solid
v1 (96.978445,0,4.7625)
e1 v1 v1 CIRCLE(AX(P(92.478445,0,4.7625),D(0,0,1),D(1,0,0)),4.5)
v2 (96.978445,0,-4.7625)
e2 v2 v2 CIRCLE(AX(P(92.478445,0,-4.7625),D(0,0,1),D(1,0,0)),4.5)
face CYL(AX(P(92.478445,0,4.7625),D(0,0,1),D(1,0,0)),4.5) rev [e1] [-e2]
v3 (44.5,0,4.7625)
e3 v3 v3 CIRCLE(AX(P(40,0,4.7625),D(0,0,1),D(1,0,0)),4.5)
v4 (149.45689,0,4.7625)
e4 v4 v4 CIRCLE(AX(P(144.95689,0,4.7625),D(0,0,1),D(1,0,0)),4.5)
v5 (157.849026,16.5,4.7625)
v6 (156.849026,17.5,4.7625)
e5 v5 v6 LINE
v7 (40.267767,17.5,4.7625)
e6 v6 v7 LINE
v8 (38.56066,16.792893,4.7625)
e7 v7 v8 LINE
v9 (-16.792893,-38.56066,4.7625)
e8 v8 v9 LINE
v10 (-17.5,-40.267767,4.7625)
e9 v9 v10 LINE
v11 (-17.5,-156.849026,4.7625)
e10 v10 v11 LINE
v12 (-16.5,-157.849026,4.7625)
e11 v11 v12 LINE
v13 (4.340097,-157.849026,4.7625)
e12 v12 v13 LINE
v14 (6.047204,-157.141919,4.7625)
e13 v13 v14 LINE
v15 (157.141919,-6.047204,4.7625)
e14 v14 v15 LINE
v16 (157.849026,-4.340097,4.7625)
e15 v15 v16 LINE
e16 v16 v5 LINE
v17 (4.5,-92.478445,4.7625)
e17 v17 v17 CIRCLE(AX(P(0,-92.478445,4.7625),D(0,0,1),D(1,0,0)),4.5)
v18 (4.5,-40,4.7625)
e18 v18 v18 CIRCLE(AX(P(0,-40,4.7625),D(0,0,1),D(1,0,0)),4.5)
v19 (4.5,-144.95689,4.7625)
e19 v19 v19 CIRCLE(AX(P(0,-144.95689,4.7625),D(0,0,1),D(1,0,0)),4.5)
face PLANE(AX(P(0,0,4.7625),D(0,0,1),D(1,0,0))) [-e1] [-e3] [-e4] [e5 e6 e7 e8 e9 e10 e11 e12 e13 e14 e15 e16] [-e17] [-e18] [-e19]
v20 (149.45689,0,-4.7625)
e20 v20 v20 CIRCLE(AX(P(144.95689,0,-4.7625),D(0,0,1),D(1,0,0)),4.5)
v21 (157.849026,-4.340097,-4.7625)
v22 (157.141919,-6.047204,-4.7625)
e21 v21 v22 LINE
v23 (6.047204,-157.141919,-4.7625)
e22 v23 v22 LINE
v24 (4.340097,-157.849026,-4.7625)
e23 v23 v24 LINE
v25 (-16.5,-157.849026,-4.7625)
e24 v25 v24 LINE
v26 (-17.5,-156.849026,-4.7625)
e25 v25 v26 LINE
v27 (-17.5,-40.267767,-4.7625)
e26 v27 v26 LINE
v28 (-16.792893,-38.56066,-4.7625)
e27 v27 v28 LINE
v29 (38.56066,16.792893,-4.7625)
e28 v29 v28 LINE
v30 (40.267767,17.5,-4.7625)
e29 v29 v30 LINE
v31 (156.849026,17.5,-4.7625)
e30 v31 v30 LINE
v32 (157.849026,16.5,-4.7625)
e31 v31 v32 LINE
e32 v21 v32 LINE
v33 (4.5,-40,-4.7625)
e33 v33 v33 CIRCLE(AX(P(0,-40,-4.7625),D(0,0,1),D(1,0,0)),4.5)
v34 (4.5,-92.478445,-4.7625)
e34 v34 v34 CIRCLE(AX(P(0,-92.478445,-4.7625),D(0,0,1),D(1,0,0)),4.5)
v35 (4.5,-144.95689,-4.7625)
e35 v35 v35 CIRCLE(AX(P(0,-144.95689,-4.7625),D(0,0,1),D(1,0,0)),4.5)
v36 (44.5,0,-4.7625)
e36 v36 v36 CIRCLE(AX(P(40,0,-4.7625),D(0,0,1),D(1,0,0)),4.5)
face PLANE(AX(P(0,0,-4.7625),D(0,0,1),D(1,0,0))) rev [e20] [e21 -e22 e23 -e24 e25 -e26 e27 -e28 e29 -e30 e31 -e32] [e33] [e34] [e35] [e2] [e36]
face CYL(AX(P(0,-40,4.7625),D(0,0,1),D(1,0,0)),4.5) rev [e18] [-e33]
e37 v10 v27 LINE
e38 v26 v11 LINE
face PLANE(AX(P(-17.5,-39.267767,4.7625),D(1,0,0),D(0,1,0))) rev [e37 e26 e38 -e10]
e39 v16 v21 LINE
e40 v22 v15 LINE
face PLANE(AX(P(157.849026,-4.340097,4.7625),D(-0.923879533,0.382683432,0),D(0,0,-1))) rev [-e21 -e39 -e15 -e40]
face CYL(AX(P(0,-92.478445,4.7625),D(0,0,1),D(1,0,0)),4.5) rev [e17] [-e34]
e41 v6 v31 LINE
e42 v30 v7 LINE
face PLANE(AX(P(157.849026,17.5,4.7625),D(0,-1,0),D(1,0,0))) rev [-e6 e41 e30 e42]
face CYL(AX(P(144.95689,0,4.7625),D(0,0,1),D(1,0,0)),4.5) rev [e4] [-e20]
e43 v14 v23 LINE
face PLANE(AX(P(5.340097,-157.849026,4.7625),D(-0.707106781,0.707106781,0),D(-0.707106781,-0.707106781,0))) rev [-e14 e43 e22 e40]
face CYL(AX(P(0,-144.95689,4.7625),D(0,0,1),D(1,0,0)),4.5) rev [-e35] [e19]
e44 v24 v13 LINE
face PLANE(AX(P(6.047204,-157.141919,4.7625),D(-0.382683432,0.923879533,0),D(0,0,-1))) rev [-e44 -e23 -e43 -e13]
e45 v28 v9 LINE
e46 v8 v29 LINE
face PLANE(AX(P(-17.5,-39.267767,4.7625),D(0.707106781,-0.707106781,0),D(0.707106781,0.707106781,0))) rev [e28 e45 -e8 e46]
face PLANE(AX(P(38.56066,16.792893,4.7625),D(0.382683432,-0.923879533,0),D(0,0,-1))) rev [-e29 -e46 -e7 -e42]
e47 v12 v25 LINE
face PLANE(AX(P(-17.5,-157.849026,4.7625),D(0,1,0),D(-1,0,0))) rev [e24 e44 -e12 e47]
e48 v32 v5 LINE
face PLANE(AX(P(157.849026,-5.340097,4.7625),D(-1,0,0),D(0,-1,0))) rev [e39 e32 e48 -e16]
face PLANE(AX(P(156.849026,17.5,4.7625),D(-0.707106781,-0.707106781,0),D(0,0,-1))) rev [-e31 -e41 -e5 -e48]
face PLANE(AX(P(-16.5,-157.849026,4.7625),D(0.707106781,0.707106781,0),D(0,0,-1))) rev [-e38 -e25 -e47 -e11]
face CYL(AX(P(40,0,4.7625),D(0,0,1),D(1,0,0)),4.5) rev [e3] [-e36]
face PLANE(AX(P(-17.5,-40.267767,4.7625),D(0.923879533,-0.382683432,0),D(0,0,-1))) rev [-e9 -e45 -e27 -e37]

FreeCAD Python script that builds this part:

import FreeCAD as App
import Part
import Sketcher


def edges_at(feature, points):
    """Names of the edges that pass closest to the given points."""
    edges = feature.Shape.Edges
    near = lambda p: min(range(len(edges)), key=lambda i: edges[i].distToShape(Part.Vertex(*p))[0])
    return sorted({f"Edge{near(p) + 1}" for p in points})


def add_polygon(sketch, points):
    """Adds a closed chain of lines whose ends are joined by coincident constraints."""
    first, n = sketch.GeometryCount, len(points)
    for a, b in zip(points, points[1:] + points[:1]):
        sketch.addGeometry(Part.LineSegment(App.Vector(*a, 0), App.Vector(*b, 0)), False)
    for i in range(n):
        sketch.addConstraint(Sketcher.Constraint("Coincident", first + i, 2, first + (i + 1) % n, 1))

doc = App.newDocument("Part")
body = doc.addObject("PartDesign::Body", "Body")

sketch1 = body.newObject("Sketcher::SketchObject", "Sketch")
sketch1.AttachmentSupport = (doc.getObject("XY_Plane"), [""])
sketch1.MapMode = "FlatFace"
add_polygon(sketch1, [(-17.5, -157.849026), (5.340097, -157.849026), (157.849026, -5.340097), (157.849026, 17.5), (39.267767, 17.5), (-17.5, -39.267767)])
sketch1.addConstraint(Sketcher.Constraint("Horizontal", 0))
sketch1.addConstraint(Sketcher.Constraint("Vertical", 2))
sketch1.addConstraint(Sketcher.Constraint("Horizontal", 3))
sketch1.addConstraint(Sketcher.Constraint("Vertical", 5))
sketch1.addConstraint(Sketcher.Constraint("Parallel", 1, 4))
sketch1.addConstraint(Sketcher.Constraint("Equal", 0, 2))
sketch1.addConstraint(Sketcher.Constraint("Equal", 3, 5))
sketch1.addConstraint(Sketcher.Constraint("DistanceY", -1, 1, 2, 2, 17.5))
sketch1.addConstraint(Sketcher.Constraint("DistanceX", 4, 2, -1, 1, 17.5))
sketch1.addConstraint(Sketcher.Constraint("DistanceX", 3, 2, 3, 1, 118.581259))
sketch1.addConstraint(Sketcher.Constraint("DistanceX", 0, 1, 0, 2, 22.840097))
sketch1.addConstraint(Sketcher.Constraint("DistanceX", 0, 2, 1, 2, 152.508928))
pad1 = body.newObject("PartDesign::Pad", "Pad")
pad1.Profile = sketch1
pad1.Length = 9.525
pad1.Midplane = True

sketch2 = body.newObject("Sketcher::SketchObject", "Sketch001")
sketch2.AttachmentSupport = (doc.getObject("XY_Plane"), [""])
sketch2.MapMode = "FlatFace"
sketch2.AttachmentOffset = App.Placement(App.Vector(0, 0, 4.7625), App.Rotation())
sketch2.addGeometry(Part.Circle(App.Vector(0, -92.478445, 0), App.Vector(0, 0, 1), 4.5), False)
sketch2.addGeometry(Part.Circle(App.Vector(144.95689, 0, 0), App.Vector(0, 0, 1), 4.5), False)
sketch2.addGeometry(Part.Circle(App.Vector(92.478445, 0, 0), App.Vector(0, 0, 1), 4.5), False)
sketch2.addGeometry(Part.Circle(App.Vector(0, -40, 0), App.Vector(0, 0, 1), 4.5), False)
sketch2.addGeometry(Part.Circle(App.Vector(0, -144.95689, 0), App.Vector(0, 0, 1), 4.5), False)
sketch2.addGeometry(Part.Circle(App.Vector(40, 0, 0), App.Vector(0, 0, 1), 4.5), False)
sketch2.addConstraint(Sketcher.Constraint("Equal", 0, 1))
sketch2.addConstraint(Sketcher.Constraint("Equal", 1, 2))
sketch2.addConstraint(Sketcher.Constraint("Equal", 2, 3))
sketch2.addConstraint(Sketcher.Constraint("Equal", 3, 4))
sketch2.addConstraint(Sketcher.Constraint("Equal", 4, 5))
sketch2.addConstraint(Sketcher.Constraint("PointOnObject", 0, 3, -2))
sketch2.addConstraint(Sketcher.Constraint("PointOnObject", 1, 3, -1))
sketch2.addConstraint(Sketcher.Constraint("PointOnObject", 2, 3, -1))
sketch2.addConstraint(Sketcher.Constraint("PointOnObject", 3, 3, -2))
sketch2.addConstraint(Sketcher.Constraint("PointOnObject", 4, 3, -2))
sketch2.addConstraint(Sketcher.Constraint("PointOnObject", 5, 3, -1))
sketch2.addConstraint(Sketcher.Constraint("Diameter", 0, 9.0))
sketch2.addConstraint(Sketcher.Constraint("DistanceY", 3, 3, -1, 1, 40.0))
sketch2.addConstraint(Sketcher.Constraint("DistanceX", -1, 1, 5, 3, 40.0))
sketch2.addConstraint(Sketcher.Constraint("DistanceX", -1, 1, 1, 3, 144.95689))
sketch2.addConstraint(Sketcher.Constraint("DistanceY", 4, 3, -1, 1, 144.95689))
sketch2.addConstraint(Sketcher.Constraint("DistanceY", 0, 3, -1, 1, 92.478445))
sketch2.addConstraint(Sketcher.Constraint("DistanceX", -1, 1, 2, 3, 92.478445))
doc.recompute()
hole = body.newObject("PartDesign::Hole", "Hole")
hole.Profile = sketch2
hole.ThreadType = "None"
hole.Diameter = 9
hole.DepthType = "ThroughAll"
doc.recompute()

chamfer = body.newObject("PartDesign::Chamfer", "Chamfer")
chamfer.Base = (hole, edges_at(hole, [
    (157.849, 17.5, 0),
    (157.849, -5.34, 0),
    (5.34, -157.849, 0),
    (-17.5, -157.849, 0),
    (-17.5, -39.268, 0),
    (39.268, 17.5, 0),
]))
chamfer.Size = 1

doc.recompute()
